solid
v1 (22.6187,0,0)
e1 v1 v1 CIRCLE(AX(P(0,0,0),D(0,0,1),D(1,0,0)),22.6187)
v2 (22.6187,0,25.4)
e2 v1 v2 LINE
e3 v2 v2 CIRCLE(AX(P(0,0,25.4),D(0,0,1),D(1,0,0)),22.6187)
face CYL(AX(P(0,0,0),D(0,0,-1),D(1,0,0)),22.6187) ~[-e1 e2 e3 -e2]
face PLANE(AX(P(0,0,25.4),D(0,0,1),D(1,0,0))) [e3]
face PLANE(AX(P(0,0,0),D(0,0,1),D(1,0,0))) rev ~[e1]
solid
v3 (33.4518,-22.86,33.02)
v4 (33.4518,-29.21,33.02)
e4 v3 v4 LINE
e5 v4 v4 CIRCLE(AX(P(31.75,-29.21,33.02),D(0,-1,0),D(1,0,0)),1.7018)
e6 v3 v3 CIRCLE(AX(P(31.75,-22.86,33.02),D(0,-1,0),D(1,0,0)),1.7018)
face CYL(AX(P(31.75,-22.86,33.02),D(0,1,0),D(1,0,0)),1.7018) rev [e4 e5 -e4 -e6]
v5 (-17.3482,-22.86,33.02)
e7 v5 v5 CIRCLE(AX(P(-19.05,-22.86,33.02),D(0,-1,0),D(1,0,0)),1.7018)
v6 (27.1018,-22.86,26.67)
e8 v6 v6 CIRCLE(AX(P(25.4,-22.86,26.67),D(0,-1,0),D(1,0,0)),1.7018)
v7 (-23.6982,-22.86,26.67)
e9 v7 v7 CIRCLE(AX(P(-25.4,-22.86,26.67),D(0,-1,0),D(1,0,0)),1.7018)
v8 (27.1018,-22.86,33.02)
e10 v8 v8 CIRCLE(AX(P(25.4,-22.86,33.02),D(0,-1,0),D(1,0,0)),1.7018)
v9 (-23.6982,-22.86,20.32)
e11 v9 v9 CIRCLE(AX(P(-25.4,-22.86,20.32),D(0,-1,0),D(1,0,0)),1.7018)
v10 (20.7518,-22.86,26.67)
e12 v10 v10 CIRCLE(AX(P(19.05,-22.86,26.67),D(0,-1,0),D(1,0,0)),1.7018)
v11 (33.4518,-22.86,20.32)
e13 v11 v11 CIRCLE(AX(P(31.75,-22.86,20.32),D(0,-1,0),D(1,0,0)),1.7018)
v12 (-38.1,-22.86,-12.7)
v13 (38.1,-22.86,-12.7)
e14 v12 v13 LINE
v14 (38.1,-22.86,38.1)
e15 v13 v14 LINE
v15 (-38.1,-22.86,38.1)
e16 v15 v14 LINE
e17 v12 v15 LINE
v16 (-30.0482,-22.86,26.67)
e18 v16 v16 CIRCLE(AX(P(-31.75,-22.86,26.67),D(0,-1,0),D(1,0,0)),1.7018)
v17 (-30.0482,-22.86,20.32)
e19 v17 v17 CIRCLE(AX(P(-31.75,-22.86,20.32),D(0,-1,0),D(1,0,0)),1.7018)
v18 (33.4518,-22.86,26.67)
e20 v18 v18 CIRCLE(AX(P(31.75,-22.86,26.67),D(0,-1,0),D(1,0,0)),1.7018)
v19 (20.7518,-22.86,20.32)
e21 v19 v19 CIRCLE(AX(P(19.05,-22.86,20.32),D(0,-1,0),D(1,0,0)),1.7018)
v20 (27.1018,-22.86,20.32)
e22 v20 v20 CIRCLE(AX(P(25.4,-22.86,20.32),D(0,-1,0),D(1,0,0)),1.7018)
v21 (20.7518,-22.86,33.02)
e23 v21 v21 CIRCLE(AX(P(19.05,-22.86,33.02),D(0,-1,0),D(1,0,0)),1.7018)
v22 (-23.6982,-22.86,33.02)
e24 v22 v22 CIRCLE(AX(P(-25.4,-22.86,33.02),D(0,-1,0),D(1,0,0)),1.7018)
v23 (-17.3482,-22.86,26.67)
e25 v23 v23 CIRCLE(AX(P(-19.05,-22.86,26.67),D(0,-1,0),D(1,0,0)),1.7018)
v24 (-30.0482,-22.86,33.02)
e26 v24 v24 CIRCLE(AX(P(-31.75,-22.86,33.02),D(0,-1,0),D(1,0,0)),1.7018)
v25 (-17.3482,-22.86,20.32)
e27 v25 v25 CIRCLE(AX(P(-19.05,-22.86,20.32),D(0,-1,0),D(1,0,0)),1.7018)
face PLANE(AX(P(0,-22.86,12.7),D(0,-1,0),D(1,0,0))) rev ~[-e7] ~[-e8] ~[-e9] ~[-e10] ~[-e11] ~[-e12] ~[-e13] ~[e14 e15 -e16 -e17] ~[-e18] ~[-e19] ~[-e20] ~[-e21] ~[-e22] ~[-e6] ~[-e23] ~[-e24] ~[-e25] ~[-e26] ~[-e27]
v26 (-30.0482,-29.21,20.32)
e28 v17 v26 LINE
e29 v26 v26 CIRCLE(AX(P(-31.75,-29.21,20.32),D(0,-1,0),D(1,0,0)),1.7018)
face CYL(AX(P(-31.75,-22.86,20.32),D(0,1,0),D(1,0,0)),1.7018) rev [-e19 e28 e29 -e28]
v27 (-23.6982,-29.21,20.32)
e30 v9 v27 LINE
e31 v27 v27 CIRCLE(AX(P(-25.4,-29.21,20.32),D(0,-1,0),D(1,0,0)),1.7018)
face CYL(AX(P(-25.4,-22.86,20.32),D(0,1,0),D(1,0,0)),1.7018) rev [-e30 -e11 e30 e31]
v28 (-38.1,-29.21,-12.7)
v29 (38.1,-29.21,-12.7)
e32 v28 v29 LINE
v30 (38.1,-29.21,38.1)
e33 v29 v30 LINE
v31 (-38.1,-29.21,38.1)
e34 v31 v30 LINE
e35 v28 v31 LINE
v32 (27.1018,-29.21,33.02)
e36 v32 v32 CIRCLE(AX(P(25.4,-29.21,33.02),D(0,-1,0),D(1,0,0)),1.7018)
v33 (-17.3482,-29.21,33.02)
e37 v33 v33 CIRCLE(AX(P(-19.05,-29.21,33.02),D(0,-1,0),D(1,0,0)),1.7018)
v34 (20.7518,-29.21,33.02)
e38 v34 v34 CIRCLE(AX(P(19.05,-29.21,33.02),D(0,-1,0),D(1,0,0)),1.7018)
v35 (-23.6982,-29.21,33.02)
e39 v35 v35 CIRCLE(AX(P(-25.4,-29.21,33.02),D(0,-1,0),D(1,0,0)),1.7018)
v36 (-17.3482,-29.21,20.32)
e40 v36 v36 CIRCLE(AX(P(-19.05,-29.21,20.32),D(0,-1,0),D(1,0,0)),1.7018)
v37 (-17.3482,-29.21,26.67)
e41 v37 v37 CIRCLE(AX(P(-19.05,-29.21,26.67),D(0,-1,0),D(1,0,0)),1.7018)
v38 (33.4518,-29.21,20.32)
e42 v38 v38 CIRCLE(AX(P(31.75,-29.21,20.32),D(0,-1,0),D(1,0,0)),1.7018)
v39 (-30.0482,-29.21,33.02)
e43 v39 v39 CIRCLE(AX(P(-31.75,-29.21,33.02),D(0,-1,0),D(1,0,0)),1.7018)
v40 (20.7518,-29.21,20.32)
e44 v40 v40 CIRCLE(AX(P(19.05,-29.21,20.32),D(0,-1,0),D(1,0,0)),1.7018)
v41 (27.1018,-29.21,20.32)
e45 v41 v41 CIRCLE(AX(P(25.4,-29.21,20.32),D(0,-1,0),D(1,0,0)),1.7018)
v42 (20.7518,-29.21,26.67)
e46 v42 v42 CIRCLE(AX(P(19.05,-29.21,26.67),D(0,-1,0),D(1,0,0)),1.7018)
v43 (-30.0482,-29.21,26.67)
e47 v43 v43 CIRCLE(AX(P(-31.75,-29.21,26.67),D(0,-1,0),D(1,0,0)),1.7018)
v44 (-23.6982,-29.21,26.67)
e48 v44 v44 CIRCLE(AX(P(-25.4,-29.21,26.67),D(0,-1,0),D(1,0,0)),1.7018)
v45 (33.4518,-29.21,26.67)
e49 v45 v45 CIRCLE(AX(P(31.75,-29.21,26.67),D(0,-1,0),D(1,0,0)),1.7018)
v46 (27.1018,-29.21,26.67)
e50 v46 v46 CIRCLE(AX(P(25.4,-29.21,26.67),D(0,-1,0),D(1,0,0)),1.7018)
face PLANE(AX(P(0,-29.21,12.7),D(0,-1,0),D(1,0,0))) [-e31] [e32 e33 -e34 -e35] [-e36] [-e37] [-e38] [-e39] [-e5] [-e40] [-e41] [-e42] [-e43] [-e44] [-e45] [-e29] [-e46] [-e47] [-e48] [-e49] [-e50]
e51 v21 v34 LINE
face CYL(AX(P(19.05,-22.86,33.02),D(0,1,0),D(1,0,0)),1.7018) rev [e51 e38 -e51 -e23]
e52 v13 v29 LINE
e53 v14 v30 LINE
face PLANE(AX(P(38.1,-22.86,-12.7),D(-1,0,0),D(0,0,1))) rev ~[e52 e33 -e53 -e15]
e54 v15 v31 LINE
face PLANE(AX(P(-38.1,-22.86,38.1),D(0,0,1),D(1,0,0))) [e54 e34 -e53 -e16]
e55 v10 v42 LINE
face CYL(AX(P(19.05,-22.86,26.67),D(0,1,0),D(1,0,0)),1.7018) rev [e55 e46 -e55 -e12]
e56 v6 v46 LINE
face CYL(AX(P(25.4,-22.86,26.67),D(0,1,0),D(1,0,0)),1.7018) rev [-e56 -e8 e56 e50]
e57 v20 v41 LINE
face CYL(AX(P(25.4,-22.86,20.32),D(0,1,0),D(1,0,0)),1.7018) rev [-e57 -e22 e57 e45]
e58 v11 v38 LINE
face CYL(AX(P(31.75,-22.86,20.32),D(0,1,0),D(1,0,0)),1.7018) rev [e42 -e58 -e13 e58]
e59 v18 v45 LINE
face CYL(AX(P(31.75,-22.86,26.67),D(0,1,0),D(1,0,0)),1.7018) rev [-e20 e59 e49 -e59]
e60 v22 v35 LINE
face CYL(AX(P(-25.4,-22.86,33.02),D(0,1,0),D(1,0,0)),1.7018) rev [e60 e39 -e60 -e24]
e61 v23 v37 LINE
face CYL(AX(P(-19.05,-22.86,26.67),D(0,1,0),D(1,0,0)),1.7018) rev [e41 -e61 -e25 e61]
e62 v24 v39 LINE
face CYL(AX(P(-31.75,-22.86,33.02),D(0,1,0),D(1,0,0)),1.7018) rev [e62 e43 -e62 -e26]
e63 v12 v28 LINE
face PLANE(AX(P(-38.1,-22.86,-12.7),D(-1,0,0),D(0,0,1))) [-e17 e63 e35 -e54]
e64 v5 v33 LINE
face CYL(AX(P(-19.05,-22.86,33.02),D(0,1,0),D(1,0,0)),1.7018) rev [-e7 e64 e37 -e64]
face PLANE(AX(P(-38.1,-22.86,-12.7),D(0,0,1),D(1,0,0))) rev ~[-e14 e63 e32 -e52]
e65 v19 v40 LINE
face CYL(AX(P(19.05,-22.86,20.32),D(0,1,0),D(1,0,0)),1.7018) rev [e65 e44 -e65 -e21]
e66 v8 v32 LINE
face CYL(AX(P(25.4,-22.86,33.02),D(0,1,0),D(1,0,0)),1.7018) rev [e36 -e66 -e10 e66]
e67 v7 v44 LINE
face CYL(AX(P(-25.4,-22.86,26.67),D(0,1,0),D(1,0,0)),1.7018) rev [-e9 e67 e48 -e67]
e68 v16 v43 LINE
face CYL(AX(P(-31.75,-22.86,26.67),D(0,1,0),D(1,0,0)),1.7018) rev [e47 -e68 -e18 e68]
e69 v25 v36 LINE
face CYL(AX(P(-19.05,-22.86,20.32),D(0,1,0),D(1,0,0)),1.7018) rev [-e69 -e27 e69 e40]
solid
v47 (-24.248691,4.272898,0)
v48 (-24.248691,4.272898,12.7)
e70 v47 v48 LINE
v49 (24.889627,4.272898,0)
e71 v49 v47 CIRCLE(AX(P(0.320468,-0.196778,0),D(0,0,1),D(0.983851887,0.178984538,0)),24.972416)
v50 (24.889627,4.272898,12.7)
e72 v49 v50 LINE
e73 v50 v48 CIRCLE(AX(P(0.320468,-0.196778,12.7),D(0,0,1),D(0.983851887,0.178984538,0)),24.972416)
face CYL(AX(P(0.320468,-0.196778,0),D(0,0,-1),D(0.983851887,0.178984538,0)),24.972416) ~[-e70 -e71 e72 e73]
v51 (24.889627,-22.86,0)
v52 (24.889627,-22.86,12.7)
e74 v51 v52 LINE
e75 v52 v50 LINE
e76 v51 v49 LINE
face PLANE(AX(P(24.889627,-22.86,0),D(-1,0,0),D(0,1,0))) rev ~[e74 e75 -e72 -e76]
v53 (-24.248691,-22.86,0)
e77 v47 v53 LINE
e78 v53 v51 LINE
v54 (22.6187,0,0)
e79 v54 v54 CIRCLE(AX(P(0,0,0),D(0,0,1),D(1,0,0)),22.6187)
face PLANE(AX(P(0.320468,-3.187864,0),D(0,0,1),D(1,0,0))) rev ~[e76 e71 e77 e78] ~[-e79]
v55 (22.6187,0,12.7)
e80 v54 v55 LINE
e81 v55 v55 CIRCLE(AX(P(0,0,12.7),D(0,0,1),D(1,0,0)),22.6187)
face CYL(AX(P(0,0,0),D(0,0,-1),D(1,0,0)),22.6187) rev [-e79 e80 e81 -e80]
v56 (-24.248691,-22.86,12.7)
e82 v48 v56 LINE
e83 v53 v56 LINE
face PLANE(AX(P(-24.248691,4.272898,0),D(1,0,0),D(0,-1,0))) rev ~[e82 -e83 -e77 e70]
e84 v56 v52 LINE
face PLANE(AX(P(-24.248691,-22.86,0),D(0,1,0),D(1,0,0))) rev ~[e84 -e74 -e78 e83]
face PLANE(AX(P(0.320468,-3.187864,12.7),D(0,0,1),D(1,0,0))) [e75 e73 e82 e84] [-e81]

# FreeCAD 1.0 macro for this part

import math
import FreeCAD as App
import Part
import Sketcher
Q = App.Units.Quantity


def add_polygon(sketch, points):
    """Adds a closed chain of lines whose ends are joined by coincident constraints."""
    first, n = sketch.GeometryCount, len(points)
    for a, b in zip(points, points[1:] + points[:1]):
        sketch.addGeometry(Part.LineSegment(App.Vector(*a, 0), App.Vector(*b, 0)), False)
    for i in range(n):
        sketch.addConstraint(Sketcher.Constraint("Coincident", first + i, 2, first + (i + 1) % n, 1))

doc = App.newDocument("Part")
body = doc.addObject("PartDesign::Body", "Body")

sketch1 = body.newObject("Sketcher::SketchObject", "Sketch")
sketch1.AttachmentSupport = (doc.getObject("XY_Plane"), [""])
sketch1.MapMode = "FlatFace"
sketch1.addGeometry(Part.Circle(App.Vector(0, 0, 0), App.Vector(0, 0, 1), 23), False)
sketch1.addConstraint(Sketcher.Constraint("Coincident", 0, 3, -1, 1))
sketch1.addConstraint(Sketcher.Constraint("Diameter", 0, Q("1.781 in")))
pad1 = body.newObject("PartDesign::Pad", "Pad")
pad1.Profile = sketch1
pad1.Length = Q("1 in")
body2 = doc.addObject("PartDesign::Body", "Body001")

sketch2 = body2.newObject("Sketcher::SketchObject", "Sketch001")
sketch2.AttachmentSupport = (doc.getObject("XZ_Plane001"), [""])
sketch2.MapMode = "FlatFace"
sketch2.AttachmentOffset = App.Placement(App.Vector(0, 0, 0.9 * 25.4), App.Rotation())
add_polygon(sketch2, [(-38.1, 38.1), (-38.1, -12.7), (38.1, -12.7), (38.1, 38.1)])
sketch2.addGeometry(Part.Circle(App.Vector(-31.8, 20.3, 0), App.Vector(0, 0, 1), 1.7), False)
sketch2.addGeometry(Part.Circle(App.Vector(-25.4, 20.3, 0), App.Vector(0, 0, 1), 1.7), False)
sketch2.addGeometry(Part.Circle(App.Vector(-19.1, 20.3, 0), App.Vector(0, 0, 1), 1.7), False)
sketch2.addGeometry(Part.Circle(App.Vector(19.1, 20.3, 0), App.Vector(0, 0, 1), 1.7), False)
sketch2.addGeometry(Part.Circle(App.Vector(25.4, 20.3, 0), App.Vector(0, 0, 1), 1.7), False)
sketch2.addGeometry(Part.Circle(App.Vector(31.8, 20.3, 0), App.Vector(0, 0, 1), 1.7), False)
sketch2.addGeometry(Part.Circle(App.Vector(-31.8, 26.7, 0), App.Vector(0, 0, 1), 1.7), False)
sketch2.addGeometry(Part.Circle(App.Vector(-25.4, 26.7, 0), App.Vector(0, 0, 1), 1.7), False)
sketch2.addGeometry(Part.Circle(App.Vector(-19.1, 26.7, 0), App.Vector(0, 0, 1), 1.7), False)
sketch2.addGeometry(Part.Circle(App.Vector(-31.8, 33, 0), App.Vector(0, 0, 1), 1.7), False)
sketch2.addGeometry(Part.Circle(App.Vector(-25.4, 33, 0), App.Vector(0, 0, 1), 1.7), False)
sketch2.addGeometry(Part.Circle(App.Vector(-19.1, 33, 0), App.Vector(0, 0, 1), 1.7), False)
sketch2.addGeometry(Part.Circle(App.Vector(19.1, 26.7, 0), App.Vector(0, 0, 1), 1.7), False)
sketch2.addGeometry(Part.Circle(App.Vector(25.4, 26.7, 0), App.Vector(0, 0, 1), 1.7), False)
sketch2.addGeometry(Part.Circle(App.Vector(31.8, 26.7, 0), App.Vector(0, 0, 1), 1.7), False)
sketch2.addGeometry(Part.Circle(App.Vector(19.1, 33, 0), App.Vector(0, 0, 1), 1.7), False)
sketch2.addGeometry(Part.Circle(App.Vector(25.4, 33, 0), App.Vector(0, 0, 1), 1.7), False)
sketch2.addGeometry(Part.Circle(App.Vector(31.8, 33, 0), App.Vector(0, 0, 1), 1.7), False)
sketch2.addConstraint(Sketcher.Constraint("Vertical", 0))
sketch2.addConstraint(Sketcher.Constraint("Horizontal", 1))
sketch2.addConstraint(Sketcher.Constraint("Vertical", 2))
sketch2.addConstraint(Sketcher.Constraint("Horizontal", 3))
sketch2.addConstraint(Sketcher.Constraint("Equal", 4, 5))
sketch2.addConstraint(Sketcher.Constraint("Equal", 5, 6))
sketch2.addConstraint(Sketcher.Constraint("Equal", 6, 7))
sketch2.addConstraint(Sketcher.Constraint("Equal", 7, 8))
sketch2.addConstraint(Sketcher.Constraint("Equal", 8, 9))
sketch2.addConstraint(Sketcher.Constraint("Equal", 9, 10))
sketch2.addConstraint(Sketcher.Constraint("Equal", 10, 11))
sketch2.addConstraint(Sketcher.Constraint("Equal", 11, 12))
sketch2.addConstraint(Sketcher.Constraint("Equal", 12, 13))
sketch2.addConstraint(Sketcher.Constraint("Equal", 13, 14))
sketch2.addConstraint(Sketcher.Constraint("Equal", 14, 15))
sketch2.addConstraint(Sketcher.Constraint("Equal", 15, 16))
sketch2.addConstraint(Sketcher.Constraint("Equal", 16, 17))
sketch2.addConstraint(Sketcher.Constraint("Equal", 17, 18))
sketch2.addConstraint(Sketcher.Constraint("Equal", 18, 19))
sketch2.addConstraint(Sketcher.Constraint("Equal", 19, 20))
sketch2.addConstraint(Sketcher.Constraint("Equal", 20, 21))
sketch2.addConstraint(Sketcher.Constraint("Symmetric", 6, 3, 7, 3, -2))
sketch2.addConstraint(Sketcher.Constraint("Symmetric", 5, 3, 8, 3, -2))
sketch2.addConstraint(Sketcher.Constraint("Symmetric", 4, 3, 9, 3, -2))
sketch2.addConstraint(Sketcher.Constraint("Symmetric", 12, 3, 16, 3, -2))
sketch2.addConstraint(Sketcher.Constraint("Symmetric", 11, 3, 17, 3, -2))
sketch2.addConstraint(Sketcher.Constraint("Symmetric", 10, 3, 18, 3, -2))
sketch2.addConstraint(Sketcher.Constraint("Symmetric", 15, 3, 19, 3, -2))
sketch2.addConstraint(Sketcher.Constraint("Symmetric", 14, 3, 20, 3, -2))
sketch2.addConstraint(Sketcher.Constraint("Symmetric", 13, 3, 21, 3, -2))
sketch2.addConstraint(Sketcher.Constraint("Horizontal", 4, 3, 5, 3))
sketch2.addConstraint(Sketcher.Constraint("Horizontal", 5, 3, 6, 3))
sketch2.addConstraint(Sketcher.Constraint("Horizontal", 10, 3, 11, 3))
sketch2.addConstraint(Sketcher.Constraint("Horizontal", 11, 3, 12, 3))
sketch2.addConstraint(Sketcher.Constraint("Horizontal", 13, 3, 14, 3))
sketch2.addConstraint(Sketcher.Constraint("Horizontal", 14, 3, 15, 3))
sketch2.addConstraint(Sketcher.Constraint("Vertical", 4, 3, 10, 3))
sketch2.addConstraint(Sketcher.Constraint("Vertical", 5, 3, 11, 3))
sketch2.addConstraint(Sketcher.Constraint("Vertical", 6, 3, 12, 3))
sketch2.addConstraint(Sketcher.Constraint("Vertical", 10, 3, 13, 3))
sketch2.addConstraint(Sketcher.Constraint("Vertical", 11, 3, 14, 3))
sketch2.addConstraint(Sketcher.Constraint("Vertical", 12, 3, 15, 3))
sketch2.addConstraint(Sketcher.Constraint("DistanceX", 1, 1, 1, 2, Q("3 in")))
sketch2.addConstraint(Sketcher.Constraint("DistanceY", 0, 2, 0, 1, Q("2 in")))
sketch2.addConstraint(Sketcher.Constraint("Diameter", 4, Q("0.134 in")))
sketch2.addConstraint(Sketcher.Constraint("DistanceX", 5, 3, -1, 1, Q("1 in")))
sketch2.addConstraint(Sketcher.Constraint("DistanceX", 4, 3, 7, 3, Q("2 in")))
sketch2.addConstraint(Sketcher.Constraint("DistanceY", -1, 1, 4, 3, Q("0.8 in")))
sketch2.addConstraint(Sketcher.Constraint("DistanceY", -1, 1, 13, 3, Q("1.3 in")))
sketch2.addConstraint(Sketcher.Constraint("DistanceX", 0, 2, -1, 1, Q("1.5 in")))
sketch2.addConstraint(Sketcher.Constraint("DistanceY", 0, 2, -1, 1, Q("0.5 in")))
sketch2.addConstraint(Sketcher.Constraint("DistanceX", 4, 3, 6, 3, Q("0.5 in")))
sketch2.addConstraint(Sketcher.Constraint("DistanceY", -1, 1, 10, 3, Q("1.05 in")))
pad2 = body2.newObject("PartDesign::Pad", "Pad001")
pad2.Profile = sketch2
pad2.Length = Q("0.25 in")
body3 = doc.addObject("PartDesign::Body", "Body002")

sketch3 = body3.newObject("Sketcher::SketchObject", "Sketch002")
sketch3.AttachmentSupport = (doc.getObject("XY_Plane002"), [""])
sketch3.MapMode = "FlatFace"
sketch3.addGeometry(Part.LineSegment(App.Vector(-24, 4, 0), App.Vector(-24, -23, 0)), False)
sketch3.addGeometry(Part.LineSegment(App.Vector(-24, -23, 0), App.Vector(25, -23, 0)), False)
sketch3.addGeometry(Part.LineSegment(App.Vector(25, -23, 0), App.Vector(25, 4, 0)), False)
sketch3.addGeometry(Part.ArcOfCircle(Part.Circle(App.Vector(0, 0, 0), App.Vector(0, 0, 1), 25), math.radians(10), math.radians(170)), False)
sketch3.addGeometry(Part.Circle(App.Vector(0, 0, 0), App.Vector(0, 0, 1), 23), False)
sketch3.addConstraint(Sketcher.Constraint("Coincident", 0, 2, 1, 1))
sketch3.addConstraint(Sketcher.Constraint("Coincident", 1, 2, 2, 1))
sketch3.addConstraint(Sketcher.Constraint("Coincident", 2, 2, 3, 1))
sketch3.addConstraint(Sketcher.Constraint("Coincident", 3, 2, 0, 1))
sketch3.addConstraint(Sketcher.Constraint("Vertical", 0))
sketch3.addConstraint(Sketcher.Constraint("Horizontal", 1))
sketch3.addConstraint(Sketcher.Constraint("Vertical", 2))
sketch3.addConstraint(Sketcher.Constraint("Coincident", 4, 3, -1, 1))
sketch3.addConstraint(Sketcher.Constraint("Horizontal", 2, 2, 3, 2))
sketch3.addConstraint(Sketcher.Constraint("Diameter", 4, Q("1.781 in")))
sketch3.addConstraint(Sketcher.Constraint("DistanceY", 0, 2, -1, 1, Q("0.9 in")))
sketch3.addConstraint(Sketcher.Constraint("Radius", 3, Q("24.972416 mm")))
sketch3.addConstraint(Sketcher.Constraint("DistanceY", -1, 1, 3, 2, Q("4.272898 mm")))
sketch3.addConstraint(Sketcher.Constraint("DistanceX", 1, 1, 1, 2, Q("49.138318 mm")))
sketch3.addConstraint(Sketcher.Constraint("DistanceX", 0, 2, -1, 1, Q("24.248691 mm")))
pad3 = body3.newObject("PartDesign::Pad", "Pad002")
pad3.Profile = sketch3
pad3.Length = Q("0.5 in")

doc.recompute()
